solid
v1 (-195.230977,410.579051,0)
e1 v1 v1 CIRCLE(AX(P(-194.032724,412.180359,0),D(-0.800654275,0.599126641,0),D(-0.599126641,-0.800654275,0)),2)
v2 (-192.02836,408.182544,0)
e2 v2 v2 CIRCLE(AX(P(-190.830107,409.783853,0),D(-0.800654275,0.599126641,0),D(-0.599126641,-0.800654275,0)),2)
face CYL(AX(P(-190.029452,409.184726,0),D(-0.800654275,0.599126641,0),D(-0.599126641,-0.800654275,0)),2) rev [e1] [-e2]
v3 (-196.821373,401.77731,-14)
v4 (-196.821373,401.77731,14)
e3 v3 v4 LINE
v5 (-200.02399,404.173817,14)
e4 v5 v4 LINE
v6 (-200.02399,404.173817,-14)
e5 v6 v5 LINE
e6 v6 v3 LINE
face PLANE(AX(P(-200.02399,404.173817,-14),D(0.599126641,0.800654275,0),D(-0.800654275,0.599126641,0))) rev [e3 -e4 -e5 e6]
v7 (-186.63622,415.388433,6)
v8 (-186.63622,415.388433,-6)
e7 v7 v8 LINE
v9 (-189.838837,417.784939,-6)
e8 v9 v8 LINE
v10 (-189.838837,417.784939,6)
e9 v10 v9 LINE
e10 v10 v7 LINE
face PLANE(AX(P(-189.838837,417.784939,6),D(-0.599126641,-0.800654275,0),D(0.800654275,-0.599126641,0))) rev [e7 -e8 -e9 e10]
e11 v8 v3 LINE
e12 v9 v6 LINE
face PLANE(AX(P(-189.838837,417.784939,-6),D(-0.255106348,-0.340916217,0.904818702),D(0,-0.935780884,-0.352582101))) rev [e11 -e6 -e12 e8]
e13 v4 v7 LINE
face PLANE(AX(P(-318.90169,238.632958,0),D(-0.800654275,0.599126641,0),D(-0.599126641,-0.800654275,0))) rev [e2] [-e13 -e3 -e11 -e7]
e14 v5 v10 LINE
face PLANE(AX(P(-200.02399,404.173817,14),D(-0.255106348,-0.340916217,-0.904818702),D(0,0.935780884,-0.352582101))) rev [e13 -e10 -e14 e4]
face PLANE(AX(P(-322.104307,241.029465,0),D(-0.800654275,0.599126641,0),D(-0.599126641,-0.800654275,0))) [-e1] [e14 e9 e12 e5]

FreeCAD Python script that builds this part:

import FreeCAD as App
import Part
import Sketcher

V = App.Vector


def add_polygon(sketch, points):
    """Adds a closed chain of lines whose ends are joined by coincident constraints."""
    first, n = sketch.GeometryCount, len(points)
    for a, b in zip(points, points[1:] + points[:1]):
        sketch.addGeometry(Part.LineSegment(App.Vector(*a, 0), App.Vector(*b, 0)), False)
    for i in range(n):
        sketch.addConstraint(Sketcher.Constraint("Coincident", first + i, 2, first + (i + 1) % n, 1))

doc = App.newDocument("Part")
body = doc.addObject("PartDesign::Body", "Body")

# Sketch on an angled plane
sketch1 = body.newObject("Sketcher::SketchObject", "Sketch")
sketch1.Placement = App.Placement(V(-318.90169, 238.632958, 0), App.Rotation(V(0, 0, 1), V(0.599126641, 0.800654275, 0), V(-0.800654275, 0.599126641, 0), "ZXY"))
add_polygon(sketch1, [(-14, 203.763793), (14, 203.763793), (6, 220.763793), (-6, 220.763793)])  # lines 0-3
sketch1.addConstraint(Sketcher.Constraint("Horizontal", 0))
sketch1.addConstraint(Sketcher.Constraint("Horizontal", 2))
sketch1.addConstraint(Sketcher.Constraint("Equal", 1, 3))
sketch1.addConstraint(Sketcher.Constraint("DistanceX", 0, 1, 0, 2, 28.0))
sketch1.addConstraint(Sketcher.Constraint("DistanceX", 2, 2, 2, 1, 12.0))
sketch1.addConstraint(Sketcher.Constraint("DistanceX", -1, 1, 0, 2, 14.0))
sketch1.addConstraint(Sketcher.Constraint("DistanceY", 0, 2, 1, 2, 17.0))
sketch1.addConstraint(Sketcher.Constraint("DistanceY", -1, 1, 0, 2, 203.763793))
pad1 = body.newObject("PartDesign::Pad", "Pad")
pad1.Profile = sketch1
pad1.Length = 4

# Sketch on an angled plane
sketch2 = body.newObject("Sketcher::SketchObject", "Sketch001")
sketch2.Placement = App.Placement(V(-190.029452, 409.184726, 0), App.Rotation(V(-0.599126641, -0.800654275, 0), V(0, 0, 1), V(-0.800654275, 0.599126641, 0), "ZXY"))
sketch2.addGeometry(Part.Circle(V(0, 0, 0), V(0, 0, 1), 2), False)
sketch2.addConstraint(Sketcher.Constraint("Coincident", 0, 3, -1, 1))
sketch2.addConstraint(Sketcher.Constraint("Diameter", 0, 4.0))

# Sketch on an angled plane
sketch3 = body.newObject("Sketcher::SketchObject", "Sketch002")
sketch3.Placement = App.Placement(V(128.071583, 171.150895, 0), App.Rotation(V(-0.800654275, 0.599126641, 0), V(0, 0, 1), V(0.599126641, 0.800654275, 0), "ZXY"))
sketch3.addGeometry(Part.LineSegment(V(397.301364, 0, 0), V(403.301364, 0, 0)), False)
sketch3.addConstraint(Sketcher.Constraint("Horizontal", 0))
sketch3.addConstraint(Sketcher.Constraint("PointOnObject", 0, 1, -1))
sketch3.addConstraint(Sketcher.Constraint("DistanceX", 0, 1, 0, 2, 6.0))
sketch3.addConstraint(Sketcher.Constraint("DistanceX", -1, 1, 0, 1, 397.301364))
doc.recompute()

subtractivepipe = body.newObject("PartDesign::SubtractivePipe", "SubtractivePipe")
subtractivepipe.Profile = sketch2
subtractivepipe.Spine = (sketch3, ["Edge1"])

doc.recompute()
